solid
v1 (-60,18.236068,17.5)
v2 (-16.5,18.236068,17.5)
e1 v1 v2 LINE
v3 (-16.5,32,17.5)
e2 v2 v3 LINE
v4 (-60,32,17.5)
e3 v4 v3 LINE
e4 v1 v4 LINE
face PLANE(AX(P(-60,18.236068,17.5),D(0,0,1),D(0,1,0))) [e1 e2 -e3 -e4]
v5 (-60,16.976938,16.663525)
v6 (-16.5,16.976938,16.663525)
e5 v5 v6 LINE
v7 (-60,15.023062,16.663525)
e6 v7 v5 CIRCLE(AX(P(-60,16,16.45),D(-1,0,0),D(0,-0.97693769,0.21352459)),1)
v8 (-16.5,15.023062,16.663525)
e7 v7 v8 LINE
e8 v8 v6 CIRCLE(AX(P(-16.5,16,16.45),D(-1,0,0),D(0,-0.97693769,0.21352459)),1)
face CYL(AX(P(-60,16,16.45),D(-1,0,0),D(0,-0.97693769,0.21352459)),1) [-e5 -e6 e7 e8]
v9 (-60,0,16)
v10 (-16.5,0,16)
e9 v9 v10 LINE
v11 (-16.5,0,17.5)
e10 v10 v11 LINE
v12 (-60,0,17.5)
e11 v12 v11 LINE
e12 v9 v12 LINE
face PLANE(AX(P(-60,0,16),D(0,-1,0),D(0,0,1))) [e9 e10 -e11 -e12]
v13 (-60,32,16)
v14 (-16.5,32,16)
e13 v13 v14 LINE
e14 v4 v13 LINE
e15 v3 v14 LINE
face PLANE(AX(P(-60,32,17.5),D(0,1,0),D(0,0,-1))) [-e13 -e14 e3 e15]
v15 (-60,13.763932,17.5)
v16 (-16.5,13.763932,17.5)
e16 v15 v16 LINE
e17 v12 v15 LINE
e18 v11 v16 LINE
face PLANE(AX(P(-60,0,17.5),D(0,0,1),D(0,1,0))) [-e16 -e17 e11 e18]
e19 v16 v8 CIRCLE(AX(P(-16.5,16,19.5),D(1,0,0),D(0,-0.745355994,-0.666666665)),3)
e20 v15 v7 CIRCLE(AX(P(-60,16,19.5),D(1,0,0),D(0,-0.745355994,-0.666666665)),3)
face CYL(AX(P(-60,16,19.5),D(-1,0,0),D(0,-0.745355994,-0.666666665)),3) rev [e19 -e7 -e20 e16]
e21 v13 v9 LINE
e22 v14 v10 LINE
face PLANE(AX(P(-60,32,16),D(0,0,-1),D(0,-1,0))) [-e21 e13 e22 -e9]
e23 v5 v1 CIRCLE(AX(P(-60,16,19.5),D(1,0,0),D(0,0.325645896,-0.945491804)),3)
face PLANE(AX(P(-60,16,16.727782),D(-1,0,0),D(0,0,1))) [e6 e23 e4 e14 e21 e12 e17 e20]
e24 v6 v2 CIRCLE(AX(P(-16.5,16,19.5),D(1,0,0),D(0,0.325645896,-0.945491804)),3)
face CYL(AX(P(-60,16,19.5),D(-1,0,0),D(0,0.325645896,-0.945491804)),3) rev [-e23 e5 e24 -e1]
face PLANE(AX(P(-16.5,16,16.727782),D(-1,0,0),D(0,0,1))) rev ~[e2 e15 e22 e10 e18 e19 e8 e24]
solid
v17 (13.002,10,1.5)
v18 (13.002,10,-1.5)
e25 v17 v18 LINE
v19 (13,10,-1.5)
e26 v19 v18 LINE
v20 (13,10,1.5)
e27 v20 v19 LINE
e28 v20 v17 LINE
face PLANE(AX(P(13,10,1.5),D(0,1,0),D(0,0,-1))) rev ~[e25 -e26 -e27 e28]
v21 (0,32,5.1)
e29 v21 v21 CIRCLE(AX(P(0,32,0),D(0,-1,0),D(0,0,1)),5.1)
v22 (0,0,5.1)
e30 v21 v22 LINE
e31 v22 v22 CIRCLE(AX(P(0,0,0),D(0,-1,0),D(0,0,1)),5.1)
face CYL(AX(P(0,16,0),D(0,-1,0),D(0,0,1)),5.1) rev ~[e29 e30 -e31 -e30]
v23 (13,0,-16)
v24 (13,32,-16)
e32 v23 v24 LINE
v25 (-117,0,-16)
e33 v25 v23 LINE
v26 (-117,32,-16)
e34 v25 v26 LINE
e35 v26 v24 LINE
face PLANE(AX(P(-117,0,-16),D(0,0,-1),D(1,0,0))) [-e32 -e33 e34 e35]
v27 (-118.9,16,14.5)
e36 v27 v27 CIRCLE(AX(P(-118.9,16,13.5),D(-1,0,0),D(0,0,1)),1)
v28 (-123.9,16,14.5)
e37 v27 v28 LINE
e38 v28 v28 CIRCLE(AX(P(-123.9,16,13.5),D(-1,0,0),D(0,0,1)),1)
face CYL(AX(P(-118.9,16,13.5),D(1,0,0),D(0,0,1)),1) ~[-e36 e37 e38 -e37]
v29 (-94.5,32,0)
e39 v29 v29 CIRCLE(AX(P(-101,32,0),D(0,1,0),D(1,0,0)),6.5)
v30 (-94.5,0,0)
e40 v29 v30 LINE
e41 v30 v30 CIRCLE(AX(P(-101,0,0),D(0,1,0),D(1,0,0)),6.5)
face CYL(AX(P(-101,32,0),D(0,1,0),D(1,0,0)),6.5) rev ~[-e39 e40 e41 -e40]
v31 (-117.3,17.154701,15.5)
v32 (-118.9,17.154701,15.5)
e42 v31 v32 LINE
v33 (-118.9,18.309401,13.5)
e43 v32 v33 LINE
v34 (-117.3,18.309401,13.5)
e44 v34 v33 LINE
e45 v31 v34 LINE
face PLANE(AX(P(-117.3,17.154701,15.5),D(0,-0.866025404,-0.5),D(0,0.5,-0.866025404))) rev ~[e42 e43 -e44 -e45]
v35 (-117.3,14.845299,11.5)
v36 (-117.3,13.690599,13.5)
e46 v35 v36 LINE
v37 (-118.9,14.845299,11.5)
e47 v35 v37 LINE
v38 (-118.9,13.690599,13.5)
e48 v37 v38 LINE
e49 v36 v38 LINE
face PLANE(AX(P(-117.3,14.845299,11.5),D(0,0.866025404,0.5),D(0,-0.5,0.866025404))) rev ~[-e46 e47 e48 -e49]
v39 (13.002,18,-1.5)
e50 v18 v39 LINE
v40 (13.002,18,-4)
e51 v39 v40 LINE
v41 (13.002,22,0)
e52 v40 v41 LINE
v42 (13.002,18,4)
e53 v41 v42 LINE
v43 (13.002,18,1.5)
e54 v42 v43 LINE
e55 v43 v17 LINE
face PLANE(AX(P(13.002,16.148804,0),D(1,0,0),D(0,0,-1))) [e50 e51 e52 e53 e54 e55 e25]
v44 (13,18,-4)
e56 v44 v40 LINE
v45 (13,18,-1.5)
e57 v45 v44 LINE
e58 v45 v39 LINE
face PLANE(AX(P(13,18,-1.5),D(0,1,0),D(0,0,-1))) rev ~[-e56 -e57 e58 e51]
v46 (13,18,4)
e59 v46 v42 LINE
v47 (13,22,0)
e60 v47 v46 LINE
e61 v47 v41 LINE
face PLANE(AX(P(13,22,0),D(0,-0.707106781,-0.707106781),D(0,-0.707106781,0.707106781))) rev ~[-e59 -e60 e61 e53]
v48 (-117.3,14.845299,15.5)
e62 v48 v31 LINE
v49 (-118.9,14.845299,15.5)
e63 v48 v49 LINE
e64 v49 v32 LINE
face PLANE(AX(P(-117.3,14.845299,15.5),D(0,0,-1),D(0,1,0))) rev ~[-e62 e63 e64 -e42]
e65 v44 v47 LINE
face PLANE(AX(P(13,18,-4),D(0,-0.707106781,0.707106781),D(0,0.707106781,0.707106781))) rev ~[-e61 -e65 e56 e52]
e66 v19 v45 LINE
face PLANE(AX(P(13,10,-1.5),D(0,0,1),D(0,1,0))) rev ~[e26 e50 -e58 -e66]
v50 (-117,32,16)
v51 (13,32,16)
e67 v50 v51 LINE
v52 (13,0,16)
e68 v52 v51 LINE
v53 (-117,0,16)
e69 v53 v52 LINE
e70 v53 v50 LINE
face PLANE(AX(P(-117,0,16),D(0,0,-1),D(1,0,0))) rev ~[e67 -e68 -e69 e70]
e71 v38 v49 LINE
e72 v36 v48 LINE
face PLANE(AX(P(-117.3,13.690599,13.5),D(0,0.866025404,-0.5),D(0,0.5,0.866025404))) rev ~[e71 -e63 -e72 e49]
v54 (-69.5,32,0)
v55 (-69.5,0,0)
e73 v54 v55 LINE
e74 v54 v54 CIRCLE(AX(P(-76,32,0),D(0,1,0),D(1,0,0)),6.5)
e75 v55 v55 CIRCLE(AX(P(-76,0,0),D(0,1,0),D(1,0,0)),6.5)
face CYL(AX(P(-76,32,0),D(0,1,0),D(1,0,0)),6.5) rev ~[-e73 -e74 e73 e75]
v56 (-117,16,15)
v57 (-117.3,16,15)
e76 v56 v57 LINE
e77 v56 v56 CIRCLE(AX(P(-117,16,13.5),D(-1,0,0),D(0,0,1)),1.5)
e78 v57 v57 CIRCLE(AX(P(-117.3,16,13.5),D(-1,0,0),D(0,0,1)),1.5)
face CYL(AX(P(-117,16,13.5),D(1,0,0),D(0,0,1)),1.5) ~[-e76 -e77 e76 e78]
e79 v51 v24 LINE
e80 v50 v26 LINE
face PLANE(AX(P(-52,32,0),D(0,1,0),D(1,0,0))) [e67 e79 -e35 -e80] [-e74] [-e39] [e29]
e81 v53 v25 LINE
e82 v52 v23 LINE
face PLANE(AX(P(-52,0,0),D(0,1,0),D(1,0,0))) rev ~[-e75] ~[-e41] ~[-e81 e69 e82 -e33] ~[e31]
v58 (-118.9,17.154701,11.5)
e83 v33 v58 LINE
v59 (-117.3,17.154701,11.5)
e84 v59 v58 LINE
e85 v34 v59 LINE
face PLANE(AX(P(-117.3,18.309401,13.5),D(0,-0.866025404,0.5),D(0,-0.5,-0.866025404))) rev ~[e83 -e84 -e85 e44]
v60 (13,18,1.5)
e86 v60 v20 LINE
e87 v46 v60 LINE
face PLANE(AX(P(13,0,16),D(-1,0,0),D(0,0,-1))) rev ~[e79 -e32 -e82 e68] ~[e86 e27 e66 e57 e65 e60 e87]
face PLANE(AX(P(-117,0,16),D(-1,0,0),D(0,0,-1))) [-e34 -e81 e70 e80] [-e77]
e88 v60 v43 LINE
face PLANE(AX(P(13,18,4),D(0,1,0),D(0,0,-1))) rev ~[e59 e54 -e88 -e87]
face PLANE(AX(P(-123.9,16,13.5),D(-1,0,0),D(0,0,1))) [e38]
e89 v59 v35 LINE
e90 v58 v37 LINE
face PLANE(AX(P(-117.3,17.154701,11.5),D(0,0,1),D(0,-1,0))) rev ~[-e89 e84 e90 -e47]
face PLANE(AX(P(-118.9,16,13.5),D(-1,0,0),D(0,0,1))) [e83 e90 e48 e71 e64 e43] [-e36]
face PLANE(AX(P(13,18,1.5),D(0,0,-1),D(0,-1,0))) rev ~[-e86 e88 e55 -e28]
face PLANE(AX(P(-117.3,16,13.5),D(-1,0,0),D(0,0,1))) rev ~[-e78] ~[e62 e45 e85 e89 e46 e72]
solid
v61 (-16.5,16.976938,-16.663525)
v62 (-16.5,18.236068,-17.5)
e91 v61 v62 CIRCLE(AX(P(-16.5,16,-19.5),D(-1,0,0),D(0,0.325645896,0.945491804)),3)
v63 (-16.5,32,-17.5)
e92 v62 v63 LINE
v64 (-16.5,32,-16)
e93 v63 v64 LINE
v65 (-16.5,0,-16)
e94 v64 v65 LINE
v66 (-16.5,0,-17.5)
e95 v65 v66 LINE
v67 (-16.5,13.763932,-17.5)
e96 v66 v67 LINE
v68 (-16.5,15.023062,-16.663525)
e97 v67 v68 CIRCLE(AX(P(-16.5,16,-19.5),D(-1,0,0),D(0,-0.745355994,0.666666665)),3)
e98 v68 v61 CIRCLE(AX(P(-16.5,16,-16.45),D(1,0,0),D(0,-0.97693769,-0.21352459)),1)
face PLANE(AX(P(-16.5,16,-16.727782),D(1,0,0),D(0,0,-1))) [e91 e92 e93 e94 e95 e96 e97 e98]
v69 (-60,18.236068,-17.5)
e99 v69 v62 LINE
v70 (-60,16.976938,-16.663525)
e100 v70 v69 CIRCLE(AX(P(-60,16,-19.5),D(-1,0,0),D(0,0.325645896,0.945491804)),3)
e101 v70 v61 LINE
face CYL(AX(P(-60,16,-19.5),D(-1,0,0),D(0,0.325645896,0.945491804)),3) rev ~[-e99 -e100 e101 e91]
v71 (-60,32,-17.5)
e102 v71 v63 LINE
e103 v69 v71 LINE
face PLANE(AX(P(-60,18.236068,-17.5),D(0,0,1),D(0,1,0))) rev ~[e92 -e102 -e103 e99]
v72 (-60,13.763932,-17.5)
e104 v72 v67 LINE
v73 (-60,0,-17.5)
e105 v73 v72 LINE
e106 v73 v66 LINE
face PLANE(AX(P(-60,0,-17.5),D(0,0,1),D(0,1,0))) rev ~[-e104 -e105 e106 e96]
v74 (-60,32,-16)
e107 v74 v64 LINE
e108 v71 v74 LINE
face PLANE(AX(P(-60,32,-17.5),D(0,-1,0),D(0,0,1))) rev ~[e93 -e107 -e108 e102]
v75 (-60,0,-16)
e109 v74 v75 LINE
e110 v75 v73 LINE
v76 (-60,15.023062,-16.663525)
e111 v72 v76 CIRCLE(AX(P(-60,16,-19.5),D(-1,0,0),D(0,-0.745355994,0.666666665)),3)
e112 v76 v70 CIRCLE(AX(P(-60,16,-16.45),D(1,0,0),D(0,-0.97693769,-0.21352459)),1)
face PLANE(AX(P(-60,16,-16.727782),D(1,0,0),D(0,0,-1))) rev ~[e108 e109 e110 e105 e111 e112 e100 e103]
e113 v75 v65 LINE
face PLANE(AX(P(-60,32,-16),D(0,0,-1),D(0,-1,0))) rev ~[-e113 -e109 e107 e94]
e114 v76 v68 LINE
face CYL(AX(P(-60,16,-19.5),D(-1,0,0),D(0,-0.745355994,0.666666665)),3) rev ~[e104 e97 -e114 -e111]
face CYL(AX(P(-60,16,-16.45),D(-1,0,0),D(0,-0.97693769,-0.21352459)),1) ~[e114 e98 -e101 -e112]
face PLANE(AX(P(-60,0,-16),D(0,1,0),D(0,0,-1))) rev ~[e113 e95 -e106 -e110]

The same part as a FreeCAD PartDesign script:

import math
import FreeCAD as App
import Part
import Sketcher
from FreeCAD import Vector
Q = App.Units.Quantity


def add_polygon(sketch, points):
    """Adds a closed chain of lines whose ends are joined by coincident constraints."""
    first, n = sketch.GeometryCount, len(points)
    for a, b in zip(points, points[1:] + points[:1]):
        sketch.addGeometry(Part.LineSegment(App.Vector(*a, 0), App.Vector(*b, 0)), False)
    for i in range(n):
        sketch.addConstraint(Sketcher.Constraint("Coincident", first + i, 2, first + (i + 1) % n, 1))

doc = App.newDocument("Part")
body = doc.addObject("PartDesign::Body", "Body")

sketch1 = body.newObject("Sketcher::SketchObject", "Sketch")
sketch1.AttachmentSupport = (doc.getObject("XZ_Plane"), [""])
sketch1.MapMode = "FlatFace"
add_polygon(sketch1, [(-117, -16), (-117, 16), (13, 16), (13, -16)])
sketch1.addConstraint([
    Sketcher.Constraint("Vertical", 0),
    Sketcher.Constraint("Horizontal", 1),
    Sketcher.Constraint("Vertical", 2),
    Sketcher.Constraint("Horizontal", 3),
    Sketcher.Constraint("DistanceX", 1, 1, 1, 2, 130.0),
    Sketcher.Constraint("DistanceY", 0, 1, 0, 2, 32.0),
    Sketcher.Constraint("DistanceX", 0, 2, -1, 1, 117.0),
    Sketcher.Constraint("DistanceY", -1, 1, 0, 2, 16.0),
])
pad1 = body.newObject("PartDesign::Pad", "Pad")
pad1.Profile = sketch1
pad1.Length = 32
pad1.Reversed = True

sketch2 = body.newObject("Sketcher::SketchObject", "Sketch001")
sketch2.AttachmentSupport = (doc.getObject("XZ_Plane"), [""])
sketch2.MapMode = "FlatFace"
sketch2.AttachmentOffset = App.Placement(Vector(0, 0, -32), App.Rotation())
sketch2.addGeometry([
    Part.Circle(Vector(-101, 0, 0), Vector(0, 0, 1), 6),
    Part.Circle(Vector(-76, 0, 0), Vector(0, 0, 1), 6),
], False)
sketch2.addConstraint([
    Sketcher.Constraint("Equal", 0, 1),
    Sketcher.Constraint("PointOnObject", 0, 3, -1),
    Sketcher.Constraint("PointOnObject", 1, 3, -1),
    Sketcher.Constraint("Diameter", 0, 13.0),
    Sketcher.Constraint("DistanceX", 0, 3, -1, 1, 101.0),
    Sketcher.Constraint("DistanceX", 1, 3, -1, 1, 76.0),
])
pocket1 = body.newObject("PartDesign::Pocket", "Pocket")
pocket1.Profile = sketch2
pocket1.Type = "ThroughAll"
pocket1.Reversed = True

sketch3 = body.newObject("Sketcher::SketchObject", "Sketch002")
sketch3.AttachmentSupport = (doc.getObject("YZ_Plane"), [""])
sketch3.MapMode = "FlatFace"
add_polygon(sketch3, [(0, 0), (32, 0), (32, 5), (0, 5)])
sketch3.addConstraint([
    Sketcher.Constraint("Horizontal", 0),
    Sketcher.Constraint("Vertical", 1),
    Sketcher.Constraint("Horizontal", 2),
    Sketcher.Constraint("Vertical", 3),
    Sketcher.Constraint("Coincident", 3, 2, -1, 1),
    Sketcher.Constraint("DistanceX", 0, 1, 0, 2, 32.0),
    Sketcher.Constraint("DistanceY", 1, 1, 1, 2, 5.1),
])
groove = body.newObject("PartDesign::Groove", "Groove")
groove.Profile = sketch3
groove.ReferenceAxis = (sketch3, ["H_Axis"])
groove.Angle = 360

sketch4 = body.newObject("Sketcher::SketchObject", "Sketch003")
sketch4.AttachmentSupport = (doc.getObject("YZ_Plane"), [""])
sketch4.MapMode = "FlatFace"
sketch4.AttachmentOffset = App.Placement(Vector(0, 0, -117), App.Rotation())
sketch4.addGeometry(Part.Circle(Vector(16, 13.5, 0), Vector(0, 0, 1), 1.5), False)
sketch4.addConstraint([
    Sketcher.Constraint("Diameter", 0, 3.0),
    Sketcher.Constraint("DistanceX", -1, 1, 0, 3, 16.0),
    Sketcher.Constraint("DistanceY", -1, 1, 0, 3, 13.5),
])
pad2 = body.newObject("PartDesign::Pad", "Pad001")
pad2.Profile = sketch4
pad2.Length = 0.3
pad2.Reversed = True

sketch5 = body.newObject("Sketcher::SketchObject", "Sketch004")
sketch5.AttachmentSupport = (doc.getObject("YZ_Plane"), [""])
sketch5.MapMode = "FlatFace"
sketch5.AttachmentOffset = App.Placement(Vector(0, 0, -117.3), App.Rotation())
add_polygon(sketch5, [(18.3, 13.5), (17.2, 11.5), (14.8, 11.5), (13.7, 13.5), (14.8, 15.5), (17.2, 15.5)])
sketch5.addConstraint([
    Sketcher.Constraint("Horizontal", 1),
    Sketcher.Constraint("Horizontal", 4),
    Sketcher.Constraint("Parallel", 0, 3),
    Sketcher.Constraint("Parallel", 2, 5),
    Sketcher.Constraint("Horizontal", 2, 2, 5, 2),
    Sketcher.Constraint("Vertical", 1, 2, 3, 2),
    Sketcher.Constraint("Vertical", 0, 2, 4, 2),
    Sketcher.Constraint("Angle", 0, Q("-120 deg")),
    Sketcher.Constraint("DistanceY", 1, 2, 2, 2, 2.0),
    Sketcher.Constraint("DistanceY", -1, 1, 0, 2, 11.5),
    Sketcher.Constraint("DistanceX", 1, 2, 1, 1, 2.309401),
    Sketcher.Constraint("DistanceX", -1, 1, 0, 2, 17.154701),
])
pad3 = body.newObject("PartDesign::Pad", "Pad002")
pad3.Profile = sketch5
pad3.Length = 1.6
pad3.Reversed = True

sketch6 = body.newObject("Sketcher::SketchObject", "Sketch005")
sketch6.AttachmentSupport = (doc.getObject("YZ_Plane"), [""])
sketch6.MapMode = "FlatFace"
sketch6.AttachmentOffset = App.Placement(Vector(0, 0, -118.9), App.Rotation())
sketch6.addGeometry(Part.Circle(Vector(16, 13.5, 0), Vector(0, 0, 1), 1), False)
sketch6.addConstraint([
    Sketcher.Constraint("Diameter", 0, 2.0),
    Sketcher.Constraint("DistanceX", -1, 1, 0, 3, 16.0),
    Sketcher.Constraint("DistanceY", -1, 1, 0, 3, 13.5),
])
pad4 = body.newObject("PartDesign::Pad", "Pad003")
pad4.Profile = sketch6
pad4.Length = 5
pad4.Reversed = True

sketch7 = body.newObject("Sketcher::SketchObject", "Sketch006")
sketch7.AttachmentSupport = (doc.getObject("YZ_Plane"), [""])
sketch7.MapMode = "FlatFace"
sketch7.AttachmentOffset = App.Placement(Vector(0, 0, 13), App.Rotation())
add_polygon(sketch7, [(22, 0), (18, 4), (18, 1.5), (10, 1.5), (10, -1.5), (18, -1.5), (18, -4)])
sketch7.addConstraint([
    Sketcher.Constraint("Vertical", 1),
    Sketcher.Constraint("Horizontal", 2),
    Sketcher.Constraint("Vertical", 3),
    Sketcher.Constraint("Horizontal", 4),
    Sketcher.Constraint("Vertical", 5),
    Sketcher.Constraint("Symmetric", 1, 2, 4, 2, -1),
    Sketcher.Constraint("PointOnObject", 6, 2, -1),
    Sketcher.Constraint("Perpendicular", 0, 6),
    Sketcher.Constraint("Equal", 1, 5),
    Sketcher.Constraint("DistanceX", 2, 2, 2, 1, 8.0),
    Sketcher.Constraint("DistanceY", 3, 2, 3, 1, 3.0),
    Sketcher.Constraint("DistanceY", 1, 2, 1, 1, 2.5),
    Sketcher.Constraint("DistanceX", -1, 1, 0, 2, 18.0),
])
pad5 = body.newObject("PartDesign::Pad", "Pad004")
pad5.Profile = sketch7
pad5.Length = 0.002
body2 = doc.addObject("PartDesign::Body", "Body001")

sketch8 = body2.newObject("Sketcher::SketchObject", "Sketch007")
sketch8.AttachmentSupport = (doc.getObject("YZ_Plane001"), [""])
sketch8.MapMode = "FlatFace"
sketch8.AttachmentOffset = App.Placement(Vector(0, 0, -60), App.Rotation())
sketch8.addGeometry([
    Part.LineSegment(Vector(0, -17.5, 0), Vector(0, -16, 0)),
    Part.LineSegment(Vector(0, -16, 0), Vector(32, -16, 0)),
    Part.LineSegment(Vector(32, -16, 0), Vector(32, -17.5, 0)),
    Part.LineSegment(Vector(32, -17.5, 0), Vector(18.2, -17.5, 0)),
    Part.ArcOfCircle(Part.Circle(Vector(16, -19.5, 0), Vector(0, 0, 1), 3), math.radians(42), math.radians(71)),
    Part.ArcOfCircle(Part.Circle(Vector(16, -16.4, 0), Vector(0, 0, 1), 1), math.radians(-168), math.radians(-12)),
    Part.ArcOfCircle(Part.Circle(Vector(16, -19.5, 0), Vector(0, 0, 1), 3), math.radians(109), math.radians(138)),
    Part.LineSegment(Vector(13.8, -17.5, 0), Vector(0, -17.5, 0)),
], False)
sketch8.addConstraint([
    Sketcher.Constraint("Coincident", 0, 2, 1, 1),
    Sketcher.Constraint("Coincident", 1, 2, 2, 1),
    Sketcher.Constraint("Coincident", 2, 2, 3, 1),
    Sketcher.Constraint("Coincident", 3, 2, 4, 1),
    Sketcher.Constraint("Coincident", 4, 2, 5, 2),
    Sketcher.Constraint("Coincident", 5, 1, 6, 1),
    Sketcher.Constraint("Coincident", 6, 2, 7, 1),
    Sketcher.Constraint("Coincident", 7, 2, 0, 1),
    Sketcher.Constraint("Vertical", 0),
    Sketcher.Constraint("Horizontal", 1),
    Sketcher.Constraint("Vertical", 2),
    Sketcher.Constraint("Horizontal", 3),
    Sketcher.Constraint("Horizontal", 7),
    Sketcher.Constraint("Coincident", 6, 3, 4, 3),
    Sketcher.Constraint("Equal", 4, 6),
    Sketcher.Constraint("PointOnObject", 0, 2, -2),
    Sketcher.Constraint("Horizontal", 4, 2, 5, 1),
    Sketcher.Constraint("Horizontal", 3, 2, 6, 2),
    Sketcher.Constraint("Equal", 3, 7),
    Sketcher.Constraint("Radius", 4, 3.0),
    Sketcher.Constraint("Radius", 5, 1.0),
    Sketcher.Constraint("DistanceX", 1, 1, 1, 2, 32.0),
    Sketcher.Constraint("DistanceY", 0, 1, 0, 2, 1.5),
    Sketcher.Constraint("DistanceY", 0, 2, -1, 1, 16.0),
    Sketcher.Constraint("DistanceY", 4, 3, 2, 2, 2.0),
    Sketcher.Constraint("DistanceY", 5, 3, -1, 1, 16.45),
])
pad6 = body2.newObject("PartDesign::Pad", "Pad005")
pad6.Profile = sketch8
pad6.Length = 43.5
body3 = doc.addObject("PartDesign::Body", "Body002")

sketch9 = body3.newObject("Sketcher::SketchObject", "Sketch008")
sketch9.AttachmentSupport = (doc.getObject("YZ_Plane002"), [""])
sketch9.MapMode = "FlatFace"
sketch9.AttachmentOffset = App.Placement(Vector(0, 0, -60), App.Rotation())
sketch9.addGeometry([
    Part.LineSegment(Vector(18.2, 17.5, 0), Vector(32, 17.5, 0)),
    Part.LineSegment(Vector(32, 17.5, 0), Vector(32, 16, 0)),
    Part.LineSegment(Vector(32, 16, 0), Vector(0, 16, 0)),
    Part.LineSegment(Vector(0, 16, 0), Vector(0, 17.5, 0)),
    Part.LineSegment(Vector(0, 17.5, 0), Vector(13.8, 17.5, 0)),
    Part.ArcOfCircle(Part.Circle(Vector(16, 19.5, 0), Vector(0, 0, 1), 3), math.radians(-138), math.radians(-109)),
    Part.ArcOfCircle(Part.Circle(Vector(16, 16.4, 0), Vector(0, 0, 1), 1), math.radians(12), math.radians(168)),
    Part.ArcOfCircle(Part.Circle(Vector(16, 19.5, 0), Vector(0, 0, 1), 3), math.radians(-71), math.radians(-42)),
], False)
sketch9.addConstraint([
    Sketcher.Constraint("Coincident", 0, 2, 1, 1),
    Sketcher.Constraint("Coincident", 1, 2, 2, 1),
    Sketcher.Constraint("Coincident", 2, 2, 3, 1),
    Sketcher.Constraint("Coincident", 3, 2, 4, 1),
    Sketcher.Constraint("Coincident", 4, 2, 5, 1),
    Sketcher.Constraint("Coincident", 5, 2, 6, 2),
    Sketcher.Constraint("Coincident", 6, 1, 7, 1),
    Sketcher.Constraint("Coincident", 7, 2, 0, 1),
    Sketcher.Constraint("Horizontal", 0),
    Sketcher.Constraint("Vertical", 1),
    Sketcher.Constraint("Horizontal", 2),
    Sketcher.Constraint("Vertical", 3),
    Sketcher.Constraint("Horizontal", 4),
    Sketcher.Constraint("Coincident", 7, 3, 5, 3),
    Sketcher.Constraint("Equal", 5, 7),
    Sketcher.Constraint("PointOnObject", 2, 2, -2),
    Sketcher.Constraint("Horizontal", 0, 2, 3, 2),
    Sketcher.Constraint("Horizontal", 5, 2, 6, 1),
    Sketcher.Constraint("Equal", 0, 4),
    Sketcher.Constraint("Radius", 5, 3.0),
    Sketcher.Constraint("Radius", 6, 1.0),
    Sketcher.Constraint("DistanceX", 2, 2, 2, 1, 32.0),
    Sketcher.Constraint("DistanceY", 1, 2, 1, 1, 1.5),
    Sketcher.Constraint("DistanceY", -1, 1, 1, 2, 16.0),
    Sketcher.Constraint("DistanceY", 0, 2, 7, 3, 2.0),
    Sketcher.Constraint("DistanceY", -1, 1, 6, 3, 16.45),
])
pad7 = body3.newObject("PartDesign::Pad", "Pad006")
pad7.Profile = sketch9
pad7.Length = 43.5

doc.recompute()
